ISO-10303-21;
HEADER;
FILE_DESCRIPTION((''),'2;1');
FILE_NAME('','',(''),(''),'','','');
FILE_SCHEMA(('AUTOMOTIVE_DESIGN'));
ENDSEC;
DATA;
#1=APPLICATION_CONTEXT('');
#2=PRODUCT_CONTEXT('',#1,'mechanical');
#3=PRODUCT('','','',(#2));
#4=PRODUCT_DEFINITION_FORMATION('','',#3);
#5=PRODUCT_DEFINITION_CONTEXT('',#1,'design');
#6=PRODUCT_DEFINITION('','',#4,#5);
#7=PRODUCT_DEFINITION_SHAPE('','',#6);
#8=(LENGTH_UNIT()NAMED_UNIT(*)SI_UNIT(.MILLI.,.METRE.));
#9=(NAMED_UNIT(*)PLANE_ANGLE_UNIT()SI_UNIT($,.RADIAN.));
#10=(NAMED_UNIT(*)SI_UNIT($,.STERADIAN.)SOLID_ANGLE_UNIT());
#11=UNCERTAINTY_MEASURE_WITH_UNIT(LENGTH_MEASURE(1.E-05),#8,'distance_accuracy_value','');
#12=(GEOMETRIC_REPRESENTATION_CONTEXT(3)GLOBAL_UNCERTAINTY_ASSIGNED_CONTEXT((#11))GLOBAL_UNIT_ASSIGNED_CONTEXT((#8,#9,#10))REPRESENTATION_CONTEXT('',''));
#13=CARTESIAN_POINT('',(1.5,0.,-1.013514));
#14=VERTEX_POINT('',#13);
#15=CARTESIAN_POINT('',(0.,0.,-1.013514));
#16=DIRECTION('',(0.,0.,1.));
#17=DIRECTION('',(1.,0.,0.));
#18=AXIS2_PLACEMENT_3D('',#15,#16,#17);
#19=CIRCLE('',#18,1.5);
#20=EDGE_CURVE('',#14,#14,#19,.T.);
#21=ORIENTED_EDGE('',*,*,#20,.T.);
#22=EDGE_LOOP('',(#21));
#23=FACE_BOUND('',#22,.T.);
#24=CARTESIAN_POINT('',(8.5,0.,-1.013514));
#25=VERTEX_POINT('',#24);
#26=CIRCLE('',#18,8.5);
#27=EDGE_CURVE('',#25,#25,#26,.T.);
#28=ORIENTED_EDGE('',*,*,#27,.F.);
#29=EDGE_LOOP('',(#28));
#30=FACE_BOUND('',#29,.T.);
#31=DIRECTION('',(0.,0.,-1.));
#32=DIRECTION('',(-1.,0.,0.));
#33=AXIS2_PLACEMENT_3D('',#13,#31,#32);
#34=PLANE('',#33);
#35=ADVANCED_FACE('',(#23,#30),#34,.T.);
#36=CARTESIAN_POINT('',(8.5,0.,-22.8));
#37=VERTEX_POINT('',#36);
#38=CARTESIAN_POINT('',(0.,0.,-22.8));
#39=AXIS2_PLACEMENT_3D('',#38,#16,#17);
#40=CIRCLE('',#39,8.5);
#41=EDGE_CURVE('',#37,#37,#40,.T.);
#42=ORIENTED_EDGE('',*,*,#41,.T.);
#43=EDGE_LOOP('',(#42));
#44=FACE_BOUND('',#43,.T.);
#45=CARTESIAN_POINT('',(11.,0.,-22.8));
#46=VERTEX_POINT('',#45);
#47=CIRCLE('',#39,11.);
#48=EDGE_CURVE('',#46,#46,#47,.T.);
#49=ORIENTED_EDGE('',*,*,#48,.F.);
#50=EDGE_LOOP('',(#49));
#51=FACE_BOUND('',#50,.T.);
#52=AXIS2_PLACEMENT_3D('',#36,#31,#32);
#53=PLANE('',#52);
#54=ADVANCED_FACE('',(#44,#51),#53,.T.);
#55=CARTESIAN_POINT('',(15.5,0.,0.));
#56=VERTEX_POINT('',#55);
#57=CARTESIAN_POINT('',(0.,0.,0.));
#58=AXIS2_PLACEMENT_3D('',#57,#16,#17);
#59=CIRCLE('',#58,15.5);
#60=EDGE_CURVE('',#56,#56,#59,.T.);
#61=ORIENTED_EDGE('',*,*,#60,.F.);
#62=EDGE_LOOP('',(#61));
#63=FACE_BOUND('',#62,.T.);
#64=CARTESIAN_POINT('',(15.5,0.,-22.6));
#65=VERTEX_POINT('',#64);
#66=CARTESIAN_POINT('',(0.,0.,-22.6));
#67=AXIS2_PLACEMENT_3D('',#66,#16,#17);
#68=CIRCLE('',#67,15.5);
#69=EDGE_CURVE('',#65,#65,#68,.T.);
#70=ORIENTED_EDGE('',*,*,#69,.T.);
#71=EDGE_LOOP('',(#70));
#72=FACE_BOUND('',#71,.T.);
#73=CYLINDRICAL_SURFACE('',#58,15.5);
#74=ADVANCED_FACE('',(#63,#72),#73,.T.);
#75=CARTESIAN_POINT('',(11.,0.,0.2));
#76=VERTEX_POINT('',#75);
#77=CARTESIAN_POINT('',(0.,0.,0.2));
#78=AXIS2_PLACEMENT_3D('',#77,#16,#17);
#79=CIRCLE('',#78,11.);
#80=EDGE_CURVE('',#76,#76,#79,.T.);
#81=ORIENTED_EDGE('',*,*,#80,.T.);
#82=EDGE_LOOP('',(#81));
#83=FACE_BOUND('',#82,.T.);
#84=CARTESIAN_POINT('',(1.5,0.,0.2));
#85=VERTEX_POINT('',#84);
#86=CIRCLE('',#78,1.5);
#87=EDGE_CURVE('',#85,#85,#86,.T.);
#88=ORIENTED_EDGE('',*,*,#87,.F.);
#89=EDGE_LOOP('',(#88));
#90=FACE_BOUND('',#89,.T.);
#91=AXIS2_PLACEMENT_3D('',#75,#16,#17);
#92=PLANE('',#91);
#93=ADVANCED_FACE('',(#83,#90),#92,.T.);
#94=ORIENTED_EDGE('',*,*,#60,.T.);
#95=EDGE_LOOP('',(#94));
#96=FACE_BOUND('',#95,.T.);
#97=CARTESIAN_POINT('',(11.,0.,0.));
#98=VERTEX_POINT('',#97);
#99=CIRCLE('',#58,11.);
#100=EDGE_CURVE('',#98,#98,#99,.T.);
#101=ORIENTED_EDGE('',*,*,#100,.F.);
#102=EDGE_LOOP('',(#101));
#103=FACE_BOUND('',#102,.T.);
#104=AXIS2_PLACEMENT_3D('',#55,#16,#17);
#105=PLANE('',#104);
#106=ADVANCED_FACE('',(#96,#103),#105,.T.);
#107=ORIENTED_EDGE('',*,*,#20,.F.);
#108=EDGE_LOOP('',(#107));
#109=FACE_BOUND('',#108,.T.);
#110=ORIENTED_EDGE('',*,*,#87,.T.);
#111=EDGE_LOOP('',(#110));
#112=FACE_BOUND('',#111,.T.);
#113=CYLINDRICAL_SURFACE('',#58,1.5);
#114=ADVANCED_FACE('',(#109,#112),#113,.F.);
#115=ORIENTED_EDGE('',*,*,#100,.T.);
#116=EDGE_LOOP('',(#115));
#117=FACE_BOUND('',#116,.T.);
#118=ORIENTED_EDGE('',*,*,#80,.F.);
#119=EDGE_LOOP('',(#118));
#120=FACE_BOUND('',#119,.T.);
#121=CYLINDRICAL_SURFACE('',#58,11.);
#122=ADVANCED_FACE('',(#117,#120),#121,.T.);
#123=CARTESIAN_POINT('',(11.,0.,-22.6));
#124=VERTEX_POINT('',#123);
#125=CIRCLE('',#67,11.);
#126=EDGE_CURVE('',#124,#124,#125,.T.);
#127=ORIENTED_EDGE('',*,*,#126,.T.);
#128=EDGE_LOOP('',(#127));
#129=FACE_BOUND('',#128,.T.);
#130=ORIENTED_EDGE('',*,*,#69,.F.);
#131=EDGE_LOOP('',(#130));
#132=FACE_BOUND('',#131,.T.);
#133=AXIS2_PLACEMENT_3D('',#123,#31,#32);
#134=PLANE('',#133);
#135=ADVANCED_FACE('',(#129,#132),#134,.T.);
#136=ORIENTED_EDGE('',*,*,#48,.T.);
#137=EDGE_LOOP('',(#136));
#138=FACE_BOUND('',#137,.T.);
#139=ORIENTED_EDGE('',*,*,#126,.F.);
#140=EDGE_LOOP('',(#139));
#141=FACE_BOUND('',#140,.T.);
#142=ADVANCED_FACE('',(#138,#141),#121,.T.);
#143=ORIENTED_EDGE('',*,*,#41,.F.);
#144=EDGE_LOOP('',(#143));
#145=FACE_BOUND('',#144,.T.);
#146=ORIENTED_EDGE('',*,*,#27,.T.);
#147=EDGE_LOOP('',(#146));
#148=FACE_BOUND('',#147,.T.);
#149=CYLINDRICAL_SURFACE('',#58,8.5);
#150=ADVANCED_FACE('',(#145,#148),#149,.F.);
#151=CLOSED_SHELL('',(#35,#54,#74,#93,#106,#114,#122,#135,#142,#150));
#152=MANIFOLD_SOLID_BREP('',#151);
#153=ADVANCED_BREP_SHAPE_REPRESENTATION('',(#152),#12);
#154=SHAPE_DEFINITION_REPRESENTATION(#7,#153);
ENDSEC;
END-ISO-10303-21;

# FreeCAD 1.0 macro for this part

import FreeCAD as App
import Part
import Sketcher

doc = App.newDocument("Part")
body = doc.addObject("PartDesign::Body", "Body")

sketch1 = body.newObject("Sketcher::SketchObject", "Sketch")
sketch1.AttachmentSupport = (doc.getObject("XZ_Plane"), [""])
sketch1.MapMode = "FlatFace"
sketch1.addGeometry([
    Part.LineSegment(App.Vector(8.5, -1.01, 0), App.Vector(1.5, -1.01, 0)),
    Part.LineSegment(App.Vector(1.5, -1.01, 0), App.Vector(1.5, 0.2, 0)),
    Part.LineSegment(App.Vector(1.5, 0.2, 0), App.Vector(11, 0.2, 0)),
    Part.LineSegment(App.Vector(11, 0.2, 0), App.Vector(11, 0, 0)),
    Part.LineSegment(App.Vector(11, 0, 0), App.Vector(15.5, 0, 0)),
    Part.LineSegment(App.Vector(15.5, 0, 0), App.Vector(15.5, -22.6, 0)),
    Part.LineSegment(App.Vector(15.5, -22.6, 0), App.Vector(11, -22.6, 0)),
    Part.LineSegment(App.Vector(11, -22.6, 0), App.Vector(11, -22.8, 0)),
    Part.LineSegment(App.Vector(11, -22.8, 0), App.Vector(8.5, -22.8, 0)),
    Part.LineSegment(App.Vector(8.5, -22.8, 0), App.Vector(8.5, -1.01, 0)),
], False)
sketch1.addConstraint([
    Sketcher.Constraint("Coincident", 0, 2, 1, 1),
    Sketcher.Constraint("Coincident", 1, 2, 2, 1),
    Sketcher.Constraint("Coincident", 2, 2, 3, 1),
    Sketcher.Constraint("Coincident", 3, 2, 4, 1),
    Sketcher.Constraint("Coincident", 4, 2, 5, 1),
    Sketcher.Constraint("Coincident", 5, 2, 6, 1),
    Sketcher.Constraint("Coincident", 6, 2, 7, 1),
    Sketcher.Constraint("Coincident", 7, 2, 8, 1),
    Sketcher.Constraint("Coincident", 8, 2, 9, 1),
    Sketcher.Constraint("Coincident", 9, 2, 0, 1),
    Sketcher.Constraint("Horizontal", 0),
    Sketcher.Constraint("Vertical", 1),
    Sketcher.Constraint("Horizontal", 2),
    Sketcher.Constraint("Vertical", 3),
    Sketcher.Constraint("Horizontal", 4),
    Sketcher.Constraint("Vertical", 5),
    Sketcher.Constraint("Horizontal", 6),
    Sketcher.Constraint("Vertical", 7),
    Sketcher.Constraint("Horizontal", 8),
    Sketcher.Constraint("Vertical", 9),
    Sketcher.Constraint("PointOnObject", 3, 2, -1),
    Sketcher.Constraint("Vertical", 3, 2, 6, 2),
    Sketcher.Constraint("Equal", 3, 7),
    Sketcher.Constraint("DistanceX", 0, 2, 0, 1, 7.0),
    Sketcher.Constraint("DistanceX", 2, 1, 2, 2, 9.5),
    Sketcher.Constraint("DistanceX", 4, 1, 4, 2, 4.5),
    Sketcher.Constraint("DistanceY", 3, 2, 3, 1, 0.2),
    Sketcher.Constraint("DistanceY", 5, 2, 5, 1, 22.6),
    Sketcher.Constraint("DistanceX", -1, 1, 2, 2, 11.0),
    Sketcher.Constraint("DistanceY", 1, 1, 1, 2, 1.213514),
])
revolution = body.newObject("PartDesign::Revolution", "Revolution")
revolution.Profile = sketch1
revolution.ReferenceAxis = (sketch1, ["V_Axis"])
revolution.Angle = 360

doc.recompute()
